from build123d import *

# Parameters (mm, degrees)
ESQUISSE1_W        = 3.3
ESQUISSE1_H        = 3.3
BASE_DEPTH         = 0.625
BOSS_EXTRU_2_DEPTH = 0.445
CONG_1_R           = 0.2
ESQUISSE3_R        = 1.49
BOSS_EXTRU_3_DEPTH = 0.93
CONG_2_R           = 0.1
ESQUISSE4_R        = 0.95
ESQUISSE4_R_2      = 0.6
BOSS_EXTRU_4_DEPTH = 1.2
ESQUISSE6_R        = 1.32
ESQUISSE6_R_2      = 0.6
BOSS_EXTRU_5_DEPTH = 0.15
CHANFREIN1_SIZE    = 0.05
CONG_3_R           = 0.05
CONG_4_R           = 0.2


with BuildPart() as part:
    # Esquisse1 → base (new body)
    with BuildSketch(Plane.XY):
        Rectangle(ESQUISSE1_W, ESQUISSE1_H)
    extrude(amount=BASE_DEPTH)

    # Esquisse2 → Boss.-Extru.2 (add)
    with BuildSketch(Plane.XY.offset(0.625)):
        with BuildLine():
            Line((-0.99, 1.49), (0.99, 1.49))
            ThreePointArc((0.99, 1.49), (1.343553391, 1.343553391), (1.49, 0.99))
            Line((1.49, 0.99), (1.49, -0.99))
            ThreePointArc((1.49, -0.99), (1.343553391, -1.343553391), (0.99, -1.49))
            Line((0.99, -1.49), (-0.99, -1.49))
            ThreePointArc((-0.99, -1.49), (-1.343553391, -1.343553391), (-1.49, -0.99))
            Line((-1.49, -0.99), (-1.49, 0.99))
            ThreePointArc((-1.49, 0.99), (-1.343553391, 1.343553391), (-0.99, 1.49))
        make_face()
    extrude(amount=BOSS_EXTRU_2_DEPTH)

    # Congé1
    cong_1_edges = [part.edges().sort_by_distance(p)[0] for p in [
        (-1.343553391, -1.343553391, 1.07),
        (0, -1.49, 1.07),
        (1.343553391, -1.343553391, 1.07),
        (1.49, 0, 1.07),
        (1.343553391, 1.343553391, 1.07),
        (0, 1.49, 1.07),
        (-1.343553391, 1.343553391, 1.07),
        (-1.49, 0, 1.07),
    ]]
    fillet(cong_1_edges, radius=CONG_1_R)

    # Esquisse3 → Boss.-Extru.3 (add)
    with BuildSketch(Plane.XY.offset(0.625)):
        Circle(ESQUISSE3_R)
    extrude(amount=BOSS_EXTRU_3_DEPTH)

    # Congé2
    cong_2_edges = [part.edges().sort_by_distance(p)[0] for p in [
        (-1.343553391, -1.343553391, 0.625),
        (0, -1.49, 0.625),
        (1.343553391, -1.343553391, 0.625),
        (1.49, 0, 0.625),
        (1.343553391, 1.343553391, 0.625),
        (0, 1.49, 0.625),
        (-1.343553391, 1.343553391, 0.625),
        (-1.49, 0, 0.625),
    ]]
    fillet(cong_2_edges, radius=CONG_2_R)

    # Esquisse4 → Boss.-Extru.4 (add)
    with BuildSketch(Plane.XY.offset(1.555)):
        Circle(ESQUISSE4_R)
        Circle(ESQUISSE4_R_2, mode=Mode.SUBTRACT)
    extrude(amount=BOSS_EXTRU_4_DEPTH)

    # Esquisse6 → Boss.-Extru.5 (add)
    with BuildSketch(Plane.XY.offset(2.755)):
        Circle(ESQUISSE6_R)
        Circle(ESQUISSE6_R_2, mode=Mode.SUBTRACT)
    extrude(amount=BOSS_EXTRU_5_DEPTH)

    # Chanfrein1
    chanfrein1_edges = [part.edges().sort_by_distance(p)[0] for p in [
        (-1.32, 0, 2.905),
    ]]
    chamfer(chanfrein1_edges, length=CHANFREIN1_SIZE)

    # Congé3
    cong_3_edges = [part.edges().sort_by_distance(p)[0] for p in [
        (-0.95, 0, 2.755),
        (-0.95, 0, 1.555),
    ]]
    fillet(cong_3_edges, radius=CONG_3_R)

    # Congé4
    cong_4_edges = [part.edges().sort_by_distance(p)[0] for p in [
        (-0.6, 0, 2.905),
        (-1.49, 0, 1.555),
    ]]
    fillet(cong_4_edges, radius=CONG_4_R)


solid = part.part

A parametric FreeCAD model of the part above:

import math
import FreeCAD as App
import Part
import Sketcher
from FreeCAD import Vector


def edges_at(feature, points):
    """Names of the edges that pass closest to the given points."""
    edges = feature.Shape.Edges
    near = lambda p: min(range(len(edges)), key=lambda i: edges[i].distToShape(Part.Vertex(*p))[0])
    return sorted({f"Edge{near(p) + 1}" for p in points})


def add_polygon(sketch, points):
    """Adds a closed chain of lines whose ends are joined by coincident constraints."""
    first, n = sketch.GeometryCount, len(points)
    for a, b in zip(points, points[1:] + points[:1]):
        sketch.addGeometry(Part.LineSegment(App.Vector(*a, 0), App.Vector(*b, 0)), False)
    for i in range(n):
        sketch.addConstraint(Sketcher.Constraint("Coincident", first + i, 2, first + (i + 1) % n, 1))

doc = App.newDocument("Part")
params = doc.addObject("Spreadsheet::Sheet", "Params")
for row, (alias, value) in enumerate([
    ("sketch1_width", "3.3 mm"),
    ("pad1_length", "0.625 mm"),
    ("sketch2_radius", "0.5 mm"),
    ("sketch2_width", "1.98 mm"),
    ("pad2_length", "0.445 mm"),
    ("fillet_radius", "0.2 mm"),
    ("sketch3_diameter", "2.98 mm"),
    ("pad3_length", "0.93 mm"),
    ("fillet2_radius", "0.1 mm"),
    ("sketch4_diameter", "1.9 mm"),
    ("sketch4_diameter2", "1.2 mm"),
    ("pad4_length", "1.2 mm"),
    ("sketch5_diameter", "1.2 mm"),
    ("sketch5_diameter2", "2.64 mm"),
    ("pad5_length", "0.15 mm"),
    ("chamfer_size", "0.05 mm"),
    ("fillet3_radius", "0.05 mm"),
    ("fillet4_radius", "0.2 mm"),
], start=1):
    params.set(f"A{row}", alias)
    params.set(f"B{row}", "=" + value)
    params.setAlias(f"B{row}", alias)

body = doc.addObject("PartDesign::Body", "Body")

# Sketch on XY plane
sketch1 = body.newObject("Sketcher::SketchObject", "Sketch")
sketch1.AttachmentSupport = (doc.getObject("XY_Plane"), [""])
sketch1.MapMode = "FlatFace"
add_polygon(sketch1, [(-1.6, 1.6), (-1.6, -1.6), (1.6, -1.6), (1.6, 1.6)])  # lines 0-3
sketch1.addConstraint(Sketcher.Constraint("Vertical", 0))
sketch1.addConstraint(Sketcher.Constraint("Horizontal", 1))
sketch1.addConstraint(Sketcher.Constraint("Vertical", 2))
sketch1.addConstraint(Sketcher.Constraint("Horizontal", 3))
sketch1.addConstraint(Sketcher.Constraint("Symmetric", 0, 2, 2, 2, -1, 1))
sketch1.addConstraint(Sketcher.Constraint("Equal", 3, 0))
sketch1.addConstraint(Sketcher.Constraint("DistanceX", 1, 1, 1, 2, 3.3))
sketch1.setExpression("Constraints[10]", "Params.sketch1_width")
pad1 = body.newObject("PartDesign::Pad", "Pad")
pad1.Profile = sketch1
pad1.setExpression("Length", "Params.pad1_length")

# Sketch on XY plane
sketch2 = body.newObject("Sketcher::SketchObject", "Sketch001")
sketch2.AttachmentSupport = (doc.getObject("XY_Plane"), [""])
sketch2.MapMode = "FlatFace"
sketch2.AttachmentOffset = App.Placement(Vector(0, 0, 0.625), App.Rotation())
sketch2.addGeometry(Part.LineSegment(Vector(0.99, 1.49, 0), Vector(-0.99, 1.49, 0)), False)
sketch2.addGeometry(Part.ArcOfCircle(Part.Circle(Vector(-0.99, 0.99, 0), Vector(0, 0, 1), 0.5), math.radians(90), math.radians(180)), False)
sketch2.addGeometry(Part.LineSegment(Vector(-1.49, 0.99, 0), Vector(-1.49, -0.99, 0)), False)
sketch2.addGeometry(Part.ArcOfCircle(Part.Circle(Vector(-0.99, -0.99, 0), Vector(0, 0, 1), 0.5), math.radians(180), math.radians(270)), False)
sketch2.addGeometry(Part.LineSegment(Vector(-0.99, -1.49, 0), Vector(0.99, -1.49, 0)), False)
sketch2.addGeometry(Part.ArcOfCircle(Part.Circle(Vector(0.99, -0.99, 0), Vector(0, 0, 1), 0.5), math.radians(-90), math.radians(0)), False)
sketch2.addGeometry(Part.LineSegment(Vector(1.49, -0.99, 0), Vector(1.49, 0.99, 0)), False)
sketch2.addGeometry(Part.ArcOfCircle(Part.Circle(Vector(0.99, 0.99, 0), Vector(0, 0, 1), 0.5), math.radians(0), math.radians(90)), False)
sketch2.addConstraint(Sketcher.Constraint("Tangent", 0, 2, 1, 1))
sketch2.addConstraint(Sketcher.Constraint("Tangent", 1, 2, 2, 1))
sketch2.addConstraint(Sketcher.Constraint("Tangent", 2, 2, 3, 1))
sketch2.addConstraint(Sketcher.Constraint("Tangent", 3, 2, 4, 1))
sketch2.addConstraint(Sketcher.Constraint("Tangent", 4, 2, 5, 1))
sketch2.addConstraint(Sketcher.Constraint("Tangent", 5, 2, 6, 1))
sketch2.addConstraint(Sketcher.Constraint("Tangent", 6, 2, 7, 1))
sketch2.addConstraint(Sketcher.Constraint("Tangent", 7, 2, 0, 1))
sketch2.addConstraint(Sketcher.Constraint("Horizontal", 0))
sketch2.addConstraint(Sketcher.Constraint("Vertical", 2))
sketch2.addConstraint(Sketcher.Constraint("Horizontal", 4))
sketch2.addConstraint(Sketcher.Constraint("Vertical", 6))
sketch2.addConstraint(Sketcher.Constraint("Equal", 1, 3))
sketch2.addConstraint(Sketcher.Constraint("Equal", 3, 5))
sketch2.addConstraint(Sketcher.Constraint("Equal", 5, 7))
sketch2.addConstraint(Sketcher.Constraint("Symmetric", 1, 3, 5, 3, -1, 1))
sketch2.addConstraint(Sketcher.Constraint("Equal", 4, 2))
sketch2.addConstraint(Sketcher.Constraint("Radius", 1, 0.5))
sketch2.addConstraint(Sketcher.Constraint("DistanceX", 0, 2, 0, 1, 1.98))
sketch2.setExpression("Constraints[17]", "Params.sketch2_radius")
sketch2.setExpression("Constraints[18]", "Params.sketch2_width")
pad2 = body.newObject("PartDesign::Pad", "Pad001")
pad2.Profile = sketch2
pad2.setExpression("Length", "Params.pad2_length")
doc.recompute()

fillet = body.newObject("PartDesign::Fillet", "Fillet")
fillet.Base = (pad2, edges_at(pad2, [
    (-1.344, -1.344, 1.07),
    (0, -1.49, 1.07),
    (1.344, -1.344, 1.07),
    (1.49, 0, 1.07),
    (1.344, 1.344, 1.07),
    (0, 1.49, 1.07),
    (-1.344, 1.344, 1.07),
    (-1.49, 0, 1.07),
]))
fillet.setExpression("Radius", "Params.fillet_radius")

# Sketch on XY plane
sketch3 = body.newObject("Sketcher::SketchObject", "Sketch002")
sketch3.AttachmentSupport = (doc.getObject("XY_Plane"), [""])
sketch3.MapMode = "FlatFace"
sketch3.AttachmentOffset = App.Placement(Vector(0, 0, 0.625), App.Rotation())
sketch3.addGeometry(Part.Circle(Vector(0, 0, 0), Vector(0, 0, 1), 1.5), False)
sketch3.addConstraint(Sketcher.Constraint("Coincident", 0, 3, -1, 1))
sketch3.addConstraint(Sketcher.Constraint("Diameter", 0, 2.98))
sketch3.setExpression("Constraints[1]", "Params.sketch3_diameter")
pad3 = body.newObject("PartDesign::Pad", "Pad002")
pad3.Profile = sketch3
pad3.setExpression("Length", "Params.pad3_length")
doc.recompute()

fillet2 = body.newObject("PartDesign::Fillet", "Fillet001")
fillet2.Base = (pad3, edges_at(pad3, [
    (-1.344, -1.344, 0.625),
    (0, -1.49, 0.625),
    (1.344, -1.344, 0.625),
    (1.49, 0, 0.625),
    (1.344, 1.344, 0.625),
    (0, 1.49, 0.625),
    (-1.344, 1.344, 0.625),
    (-1.49, 0, 0.625),
]))
fillet2.setExpression("Radius", "Params.fillet2_radius")

# Sketch on XY plane
sketch4 = body.newObject("Sketcher::SketchObject", "Sketch003")
sketch4.AttachmentSupport = (doc.getObject("XY_Plane"), [""])
sketch4.MapMode = "FlatFace"
sketch4.AttachmentOffset = App.Placement(Vector(0, 0, 1.555), App.Rotation())
sketch4.addGeometry(Part.Circle(Vector(0, 0, 0), Vector(0, 0, 1), 0.9), False)
sketch4.addGeometry(Part.Circle(Vector(0, 0, 0), Vector(0, 0, 1), 0.6), False)
sketch4.addConstraint(Sketcher.Constraint("Coincident", 0, 3, -1, 1))
sketch4.addConstraint(Sketcher.Constraint("Coincident", 1, 3, -1, 1))
sketch4.addConstraint(Sketcher.Constraint("Diameter", 0, 1.9))
sketch4.addConstraint(Sketcher.Constraint("Diameter", 1, 1.2))
sketch4.setExpression("Constraints[2]", "Params.sketch4_diameter")
sketch4.setExpression("Constraints[3]", "Params.sketch4_diameter2")
pad4 = body.newObject("PartDesign::Pad", "Pad003")
pad4.Profile = sketch4
pad4.setExpression("Length", "Params.pad4_length")

# Sketch on XY plane
sketch5 = body.newObject("Sketcher::SketchObject", "Sketch004")
sketch5.AttachmentSupport = (doc.getObject("XY_Plane"), [""])
sketch5.MapMode = "FlatFace"
sketch5.AttachmentOffset = App.Placement(Vector(0, 0, 2.755), App.Rotation())
sketch5.addGeometry(Part.Circle(Vector(0, 0, 0), Vector(0, 0, 1), 1.3), False)
sketch5.addGeometry(Part.Circle(Vector(0, 0, 0), Vector(0, 0, 1), 0.6), False)
sketch5.addConstraint(Sketcher.Constraint("Coincident", 0, 3, -1, 1))
sketch5.addConstraint(Sketcher.Constraint("Coincident", 1, 3, -1, 1))
sketch5.addConstraint(Sketcher.Constraint("Diameter", 1, 1.2))
sketch5.addConstraint(Sketcher.Constraint("Diameter", 0, 2.64))
sketch5.setExpression("Constraints[2]", "Params.sketch5_diameter")
sketch5.setExpression("Constraints[3]", "Params.sketch5_diameter2")
pad5 = body.newObject("PartDesign::Pad", "Pad004")
pad5.Profile = sketch5
pad5.setExpression("Length", "Params.pad5_length")
doc.recompute()

chamfer = body.newObject("PartDesign::Chamfer", "Chamfer")
chamfer.Base = (pad5, edges_at(pad5, [(-1.32, 0, 2.905)]))
chamfer.setExpression("Size", "Params.chamfer_size")
doc.recompute()

fillet3 = body.newObject("PartDesign::Fillet", "Fillet002")
fillet3.Base = (chamfer, edges_at(chamfer, [(-0.95, 0, 2.755), (-0.95, 0, 1.555)]))
fillet3.setExpression("Radius", "Params.fillet3_radius")
doc.recompute()

fillet4 = body.newObject("PartDesign::Fillet", "Fillet003")
fillet4.Base = (fillet3, edges_at(fillet3, [(-0.6, 0, 2.905), (-1.49, 0, 1.555)]))
fillet4.setExpression("Radius", "Params.fillet4_radius")

doc.recompute()
